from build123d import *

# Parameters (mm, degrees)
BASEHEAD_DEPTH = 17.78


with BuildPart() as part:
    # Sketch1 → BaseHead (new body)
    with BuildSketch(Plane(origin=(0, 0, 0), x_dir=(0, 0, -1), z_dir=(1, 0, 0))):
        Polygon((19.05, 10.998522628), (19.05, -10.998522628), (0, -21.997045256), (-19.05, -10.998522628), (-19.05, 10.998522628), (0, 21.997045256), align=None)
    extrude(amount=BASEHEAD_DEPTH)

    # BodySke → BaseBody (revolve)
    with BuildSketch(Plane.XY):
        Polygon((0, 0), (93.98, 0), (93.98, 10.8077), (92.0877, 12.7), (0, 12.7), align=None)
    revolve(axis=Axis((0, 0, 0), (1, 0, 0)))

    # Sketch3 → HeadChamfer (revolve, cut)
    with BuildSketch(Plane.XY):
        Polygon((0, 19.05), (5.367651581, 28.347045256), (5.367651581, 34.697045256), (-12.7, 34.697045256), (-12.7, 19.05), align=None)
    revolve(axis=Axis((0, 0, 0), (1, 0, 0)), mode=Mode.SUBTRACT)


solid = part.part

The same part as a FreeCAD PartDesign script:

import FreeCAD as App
import Part
import Sketcher
Q = App.Units.Quantity

doc = App.newDocument("Part")
body = doc.addObject("PartDesign::Body", "Body")

# Sketch on YZ plane
sketch1 = body.newObject("Sketcher::SketchObject", "Sketch")
sketch1.AttachmentSupport = (doc.getObject("YZ_Plane"), [""])
sketch1.MapMode = "FlatFace"
sketch1.addGeometry([
    Part.LineSegment(App.Vector(-11, -19, 0), App.Vector(11, -19, 0)),  # 0
    Part.LineSegment(App.Vector(11, -19, 0), App.Vector(22, 0, 0)),  # 1
    Part.LineSegment(App.Vector(22, 0, 0), App.Vector(11, 19, 0)),  # 2
    Part.LineSegment(App.Vector(11, 19, 0), App.Vector(-11, 19, 0)),  # 3
    Part.LineSegment(App.Vector(-11, 19, 0), App.Vector(-22, 0, 0)),  # 4
    Part.LineSegment(App.Vector(-22, 0, 0), App.Vector(-11, -19, 0)),  # 5
], False)
sketch1.addConstraint([
    Sketcher.Constraint("Coincident", 0, 2, 1, 1),
    Sketcher.Constraint("Coincident", 1, 2, 2, 1),
    Sketcher.Constraint("Coincident", 2, 2, 3, 1),
    Sketcher.Constraint("Coincident", 3, 2, 4, 1),
    Sketcher.Constraint("Coincident", 4, 2, 5, 1),
    Sketcher.Constraint("Coincident", 5, 2, 0, 1),
    Sketcher.Constraint("Horizontal", 0),
    Sketcher.Constraint("Horizontal", 3),
    Sketcher.Constraint("Symmetric", 0, 2, 3, 2, -1, 1),
    Sketcher.Constraint("Symmetric", 1, 2, 4, 2, -1, 1),
    Sketcher.Constraint("PointOnObject", 1, 2, -1),
    Sketcher.Constraint("Parallel", 2, 5),
    Sketcher.Constraint("Vertical", 0, 2, 2, 2),
    Sketcher.Constraint("Angle", 1, Q("60 deg")),
    Sketcher.Constraint("DistanceY", 0, 2, 2, 2, Q("1.5 in")),
    Sketcher.Constraint("DistanceX", 0, 1, 0, 2, 21.997045),
])
pad1 = body.newObject("PartDesign::Pad", "Pad")
pad1.Profile = sketch1
pad1.Length = Q("0.7 in")

# Sketch on XY plane
sketch2 = body.newObject("Sketcher::SketchObject", "Sketch001")
sketch2.AttachmentSupport = (doc.getObject("XY_Plane"), [""])
sketch2.MapMode = "FlatFace"
sketch2.addGeometry([
    Part.LineSegment(App.Vector(0, 0, 0), App.Vector(94, 0, 0)),  # 0
    Part.LineSegment(App.Vector(94, 0, 0), App.Vector(94, 10.8, 0)),  # 1
    Part.LineSegment(App.Vector(94, 10.8, 0), App.Vector(92.1, 12.7, 0)),  # 2
    Part.LineSegment(App.Vector(92.1, 12.7, 0), App.Vector(0, 12.7, 0)),  # 3
    Part.LineSegment(App.Vector(0, 12.7, 0), App.Vector(0, 0, 0)),  # 4
], False)
sketch2.addConstraint([
    Sketcher.Constraint("Coincident", 0, 2, 1, 1),
    Sketcher.Constraint("Coincident", 1, 2, 2, 1),
    Sketcher.Constraint("Coincident", 2, 2, 3, 1),
    Sketcher.Constraint("Coincident", 3, 2, 4, 1),
    Sketcher.Constraint("Coincident", 4, 2, 0, 1),
    Sketcher.Constraint("Horizontal", 0),
    Sketcher.Constraint("Vertical", 1),
    Sketcher.Constraint("Horizontal", 3),
    Sketcher.Constraint("Vertical", 4),
    Sketcher.Constraint("Coincident", 4, 2, -1, 1),
    Sketcher.Constraint("DistanceX", 0, 1, 0, 2, Q("3.7 in")),
    Sketcher.Constraint("DistanceY", 4, 2, 4, 1, Q("0.5 in")),
    Sketcher.Constraint("Angle", 2, Q("135 deg")),
    Sketcher.Constraint("DistanceX", 3, 2, 3, 1, Q("3.6255 in")),
])
revolution = body.newObject("PartDesign::Revolution", "Revolution")
revolution.Profile = sketch2
revolution.ReferenceAxis = (sketch2, ["H_Axis"])
revolution.Angle = 360

# Sketch on XY plane
sketch3 = body.newObject("Sketcher::SketchObject", "Sketch002")
sketch3.AttachmentSupport = (doc.getObject("XY_Plane"), [""])
sketch3.MapMode = "FlatFace"
sketch3.addGeometry([
    Part.LineSegment(App.Vector(0, 19, 0), App.Vector(5, 28, 0)),  # 0
    Part.LineSegment(App.Vector(5, 28, 0), App.Vector(5, 35, 0)),  # 1
    Part.LineSegment(App.Vector(5, 35, 0), App.Vector(-13, 35, 0)),  # 2
    Part.LineSegment(App.Vector(-13, 35, 0), App.Vector(-13, 19, 0)),  # 3
    Part.LineSegment(App.Vector(-13, 19, 0), App.Vector(0, 19, 0)),  # 4
], False)
sketch3.addConstraint([
    Sketcher.Constraint("Coincident", 0, 2, 1, 1),
    Sketcher.Constraint("Coincident", 1, 2, 2, 1),
    Sketcher.Constraint("Coincident", 2, 2, 3, 1),
    Sketcher.Constraint("Coincident", 3, 2, 4, 1),
    Sketcher.Constraint("Coincident", 4, 2, 0, 1),
    Sketcher.Constraint("Vertical", 1),
    Sketcher.Constraint("Horizontal", 2),
    Sketcher.Constraint("Vertical", 3),
    Sketcher.Constraint("Horizontal", 4),
    Sketcher.Constraint("PointOnObject", 4, 2, -2),
    Sketcher.Constraint("DistanceX", 4, 1, 4, 2, Q("0.5 in")),
    Sketcher.Constraint("Angle", 0, Q("60 deg")),
    Sketcher.Constraint("DistanceY", 1, 1, 1, 2, Q("0.25 in")),
    Sketcher.Constraint("DistanceY", -1, 1, 3, 2, Q("0.75 in")),
    Sketcher.Constraint("DistanceX", 2, 2, 2, 1, 18.067652),
])
groove = body.newObject("PartDesign::Groove", "Groove")
groove.Profile = sketch3
groove.ReferenceAxis = (sketch3, ["H_Axis"])
groove.Angle = 360

doc.recompute()
